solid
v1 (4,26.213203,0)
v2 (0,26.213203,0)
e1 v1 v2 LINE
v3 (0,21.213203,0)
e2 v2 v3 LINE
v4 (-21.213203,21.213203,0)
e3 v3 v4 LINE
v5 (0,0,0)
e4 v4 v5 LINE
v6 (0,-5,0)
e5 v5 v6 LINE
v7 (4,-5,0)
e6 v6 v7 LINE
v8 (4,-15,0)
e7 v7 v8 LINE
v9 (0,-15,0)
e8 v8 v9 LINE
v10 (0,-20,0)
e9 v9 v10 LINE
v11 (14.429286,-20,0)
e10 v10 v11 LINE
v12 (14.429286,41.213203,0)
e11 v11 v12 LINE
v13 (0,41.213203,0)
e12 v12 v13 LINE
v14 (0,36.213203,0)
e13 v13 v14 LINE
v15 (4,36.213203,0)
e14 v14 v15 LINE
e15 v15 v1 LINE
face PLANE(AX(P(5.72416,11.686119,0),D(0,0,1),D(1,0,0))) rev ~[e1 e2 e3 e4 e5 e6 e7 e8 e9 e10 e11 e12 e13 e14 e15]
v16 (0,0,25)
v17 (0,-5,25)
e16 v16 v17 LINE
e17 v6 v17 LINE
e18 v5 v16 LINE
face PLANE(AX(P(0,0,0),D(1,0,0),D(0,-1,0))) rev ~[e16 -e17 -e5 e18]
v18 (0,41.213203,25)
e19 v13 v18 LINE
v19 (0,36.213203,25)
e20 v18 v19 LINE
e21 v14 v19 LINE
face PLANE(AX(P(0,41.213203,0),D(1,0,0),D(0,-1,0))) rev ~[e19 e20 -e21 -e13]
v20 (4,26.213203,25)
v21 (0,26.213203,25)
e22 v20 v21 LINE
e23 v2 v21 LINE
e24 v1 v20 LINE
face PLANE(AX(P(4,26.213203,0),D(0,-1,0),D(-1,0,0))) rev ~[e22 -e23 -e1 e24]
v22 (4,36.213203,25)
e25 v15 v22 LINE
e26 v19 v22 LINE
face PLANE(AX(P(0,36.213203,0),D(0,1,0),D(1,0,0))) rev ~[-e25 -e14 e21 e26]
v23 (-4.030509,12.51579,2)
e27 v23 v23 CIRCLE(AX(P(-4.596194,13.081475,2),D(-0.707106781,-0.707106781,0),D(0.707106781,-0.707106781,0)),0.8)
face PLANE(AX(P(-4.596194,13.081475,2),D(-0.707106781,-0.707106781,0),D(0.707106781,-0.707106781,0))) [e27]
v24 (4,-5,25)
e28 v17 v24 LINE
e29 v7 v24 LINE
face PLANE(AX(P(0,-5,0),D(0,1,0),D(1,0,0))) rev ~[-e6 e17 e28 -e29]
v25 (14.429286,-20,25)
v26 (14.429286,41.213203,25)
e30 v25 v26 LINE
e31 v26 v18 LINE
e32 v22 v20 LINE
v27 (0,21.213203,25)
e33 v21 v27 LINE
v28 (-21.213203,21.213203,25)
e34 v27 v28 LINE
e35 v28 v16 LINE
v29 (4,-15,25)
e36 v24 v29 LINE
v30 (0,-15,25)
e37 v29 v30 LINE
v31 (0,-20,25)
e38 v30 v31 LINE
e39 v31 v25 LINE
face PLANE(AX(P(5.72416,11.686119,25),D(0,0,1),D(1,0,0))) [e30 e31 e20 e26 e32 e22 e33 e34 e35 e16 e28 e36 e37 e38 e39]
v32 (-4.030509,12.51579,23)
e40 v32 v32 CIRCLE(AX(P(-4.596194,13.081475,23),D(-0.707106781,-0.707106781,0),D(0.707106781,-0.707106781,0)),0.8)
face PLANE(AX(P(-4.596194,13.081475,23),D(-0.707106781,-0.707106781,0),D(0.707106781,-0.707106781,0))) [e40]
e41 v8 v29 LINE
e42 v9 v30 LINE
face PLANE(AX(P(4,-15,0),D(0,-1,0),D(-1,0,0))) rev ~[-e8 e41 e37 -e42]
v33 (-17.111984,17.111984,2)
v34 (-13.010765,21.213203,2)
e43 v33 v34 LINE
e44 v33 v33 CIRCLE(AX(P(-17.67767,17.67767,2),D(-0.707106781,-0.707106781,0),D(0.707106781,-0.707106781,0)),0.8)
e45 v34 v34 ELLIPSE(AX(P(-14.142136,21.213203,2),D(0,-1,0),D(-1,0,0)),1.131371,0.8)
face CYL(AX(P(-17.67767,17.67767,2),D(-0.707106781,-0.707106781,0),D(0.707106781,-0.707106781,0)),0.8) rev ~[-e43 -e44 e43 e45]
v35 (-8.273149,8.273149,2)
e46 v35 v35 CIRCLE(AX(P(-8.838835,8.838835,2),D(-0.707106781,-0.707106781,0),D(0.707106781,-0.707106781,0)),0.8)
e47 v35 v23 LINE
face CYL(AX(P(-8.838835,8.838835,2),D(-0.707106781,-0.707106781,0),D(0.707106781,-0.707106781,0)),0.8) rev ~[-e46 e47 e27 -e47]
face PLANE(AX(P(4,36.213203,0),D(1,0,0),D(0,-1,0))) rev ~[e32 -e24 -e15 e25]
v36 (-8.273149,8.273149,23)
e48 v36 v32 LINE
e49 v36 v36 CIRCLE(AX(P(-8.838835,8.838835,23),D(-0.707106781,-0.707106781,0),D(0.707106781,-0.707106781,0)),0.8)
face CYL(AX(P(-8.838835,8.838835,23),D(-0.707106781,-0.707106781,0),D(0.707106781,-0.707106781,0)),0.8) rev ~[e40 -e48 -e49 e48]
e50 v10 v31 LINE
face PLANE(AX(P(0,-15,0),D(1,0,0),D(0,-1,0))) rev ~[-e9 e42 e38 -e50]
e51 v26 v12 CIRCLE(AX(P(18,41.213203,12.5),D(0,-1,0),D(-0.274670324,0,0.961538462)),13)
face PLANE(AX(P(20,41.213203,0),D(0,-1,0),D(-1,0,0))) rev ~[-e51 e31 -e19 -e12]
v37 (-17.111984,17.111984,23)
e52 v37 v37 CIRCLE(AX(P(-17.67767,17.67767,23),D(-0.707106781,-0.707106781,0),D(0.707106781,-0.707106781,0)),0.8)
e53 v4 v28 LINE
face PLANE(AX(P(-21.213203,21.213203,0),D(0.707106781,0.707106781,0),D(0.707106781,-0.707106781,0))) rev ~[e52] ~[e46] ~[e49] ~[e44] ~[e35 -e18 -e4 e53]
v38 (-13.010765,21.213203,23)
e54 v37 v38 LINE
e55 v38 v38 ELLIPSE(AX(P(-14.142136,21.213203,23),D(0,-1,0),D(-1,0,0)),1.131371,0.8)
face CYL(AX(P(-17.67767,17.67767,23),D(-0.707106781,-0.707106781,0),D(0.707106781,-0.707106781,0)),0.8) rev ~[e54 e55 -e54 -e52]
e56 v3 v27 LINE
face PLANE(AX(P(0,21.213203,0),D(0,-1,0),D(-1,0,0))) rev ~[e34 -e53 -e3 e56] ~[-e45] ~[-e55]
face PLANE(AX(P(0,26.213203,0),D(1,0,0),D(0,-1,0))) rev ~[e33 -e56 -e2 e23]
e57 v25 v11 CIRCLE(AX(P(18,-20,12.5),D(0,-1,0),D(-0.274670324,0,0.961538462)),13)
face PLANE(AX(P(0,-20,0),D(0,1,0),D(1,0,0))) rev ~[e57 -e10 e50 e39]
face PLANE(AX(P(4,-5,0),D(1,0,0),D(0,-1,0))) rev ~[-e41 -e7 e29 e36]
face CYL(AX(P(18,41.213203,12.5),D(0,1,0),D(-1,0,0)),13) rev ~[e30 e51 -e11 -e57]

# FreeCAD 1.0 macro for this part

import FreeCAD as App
import Part
import Sketcher

V = App.Vector
Q = App.Units.Quantity

doc = App.newDocument("Part")
params = doc.addObject("Spreadsheet::Sheet", "Params")
for row, (alias, value) in enumerate([
    ("sketch1_width", "4 mm"),
    ("sketch1_width2", "20 mm"),
    ("sketch1_height", "5 mm"),
    ("sketch1_height2", "10 mm"),
    ("sketch1_length", "29.999999 mm"),
    ("pad1_length", "25 mm"),
    ("sketch2_diameter", "26 mm"),
    ("sketch3_diameter", "1.6 mm"),
    ("pocket2_length", "6 mm"),
], start=1):
    params.set(f"A{row}", alias)
    params.set(f"B{row}", "=" + value)
    params.setAlias(f"B{row}", alias)

body = doc.addObject("PartDesign::Body", "Body")

sketch1 = doc.addObject("Sketcher::SketchObject", "Sketch")
body.addObject(sketch1)
sketch1.AttachmentSupport = (doc.XY_Plane, [""])
sketch1.MapMode = "FlatFace"
sketch1.addGeometry(Part.LineSegment(V(0, 21.2, 0), V(-21.2, 21.2, 0)), False)
sketch1.addGeometry(Part.LineSegment(V(-21.2, 21.2, 0), V(0, 0, 0)), False)
sketch1.addGeometry(Part.LineSegment(V(0, 0, 0), V(0, -5, 0)), False)
sketch1.addGeometry(Part.LineSegment(V(0, -5, 0), V(4, -5, 0)), False)
sketch1.addGeometry(Part.LineSegment(V(4, -5, 0), V(4, -15, 0)), False)
sketch1.addGeometry(Part.LineSegment(V(4, -15, 0), V(0, -15, 0)), False)
sketch1.addGeometry(Part.LineSegment(V(0, -15, 0), V(0, -20, 0)), False)
sketch1.addGeometry(Part.LineSegment(V(0, -20, 0), V(20, -20, 0)), False)
sketch1.addGeometry(Part.LineSegment(V(20, -20, 0), V(20, 41.2, 0)), False)
sketch1.addGeometry(Part.LineSegment(V(20, 41.2, 0), V(0, 41.2, 0)), False)
sketch1.addGeometry(Part.LineSegment(V(0, 41.2, 0), V(0, 36.2, 0)), False)
sketch1.addGeometry(Part.LineSegment(V(0, 36.2, 0), V(4, 36.2, 0)), False)
sketch1.addGeometry(Part.LineSegment(V(4, 36.2, 0), V(4, 26.2, 0)), False)
sketch1.addGeometry(Part.LineSegment(V(4, 26.2, 0), V(0, 26.2, 0)), False)
sketch1.addGeometry(Part.LineSegment(V(0, 26.2, 0), V(0, 21.2, 0)), False)
sketch1.addConstraint(Sketcher.Constraint("Coincident", 0, 2, 1, 1))
sketch1.addConstraint(Sketcher.Constraint("Coincident", 1, 2, 2, 1))
sketch1.addConstraint(Sketcher.Constraint("Coincident", 2, 2, 3, 1))
sketch1.addConstraint(Sketcher.Constraint("Coincident", 3, 2, 4, 1))
sketch1.addConstraint(Sketcher.Constraint("Coincident", 4, 2, 5, 1))
sketch1.addConstraint(Sketcher.Constraint("Coincident", 5, 2, 6, 1))
sketch1.addConstraint(Sketcher.Constraint("Coincident", 6, 2, 7, 1))
sketch1.addConstraint(Sketcher.Constraint("Coincident", 7, 2, 8, 1))
sketch1.addConstraint(Sketcher.Constraint("Coincident", 8, 2, 9, 1))
sketch1.addConstraint(Sketcher.Constraint("Coincident", 9, 2, 10, 1))
sketch1.addConstraint(Sketcher.Constraint("Coincident", 10, 2, 11, 1))
sketch1.addConstraint(Sketcher.Constraint("Coincident", 11, 2, 12, 1))
sketch1.addConstraint(Sketcher.Constraint("Coincident", 12, 2, 13, 1))
sketch1.addConstraint(Sketcher.Constraint("Coincident", 13, 2, 14, 1))
sketch1.addConstraint(Sketcher.Constraint("Coincident", 14, 2, 0, 1))
sketch1.addConstraint(Sketcher.Constraint("Horizontal", 0))
sketch1.addConstraint(Sketcher.Constraint("Vertical", 2))
sketch1.addConstraint(Sketcher.Constraint("Horizontal", 3))
sketch1.addConstraint(Sketcher.Constraint("Vertical", 4))
sketch1.addConstraint(Sketcher.Constraint("Horizontal", 5))
sketch1.addConstraint(Sketcher.Constraint("Vertical", 6))
sketch1.addConstraint(Sketcher.Constraint("Horizontal", 7))
sketch1.addConstraint(Sketcher.Constraint("Vertical", 8))
sketch1.addConstraint(Sketcher.Constraint("Horizontal", 9))
sketch1.addConstraint(Sketcher.Constraint("Vertical", 10))
sketch1.addConstraint(Sketcher.Constraint("Horizontal", 11))
sketch1.addConstraint(Sketcher.Constraint("Vertical", 12))
sketch1.addConstraint(Sketcher.Constraint("Horizontal", 13))
sketch1.addConstraint(Sketcher.Constraint("Vertical", 14))
sketch1.addConstraint(Sketcher.Constraint("Coincident", 1, 2, -1, 1))
sketch1.addConstraint(Sketcher.Constraint("PointOnObject", 5, 2, -2))
sketch1.addConstraint(Sketcher.Constraint("PointOnObject", 9, 2, -2))
sketch1.addConstraint(Sketcher.Constraint("PointOnObject", 13, 2, -2))
sketch1.addConstraint(Sketcher.Constraint("Vertical", 4, 2, 11, 2))
sketch1.addConstraint(Sketcher.Constraint("Equal", 2, 6))
sketch1.addConstraint(Sketcher.Constraint("Equal", 6, 10))
sketch1.addConstraint(Sketcher.Constraint("Equal", 4, 12))
sketch1.addConstraint(Sketcher.Constraint("Equal", 10, 14))
sketch1.addConstraint(Sketcher.Constraint("DistanceX", 3, 1, 3, 2, 4.0))
sketch1.addConstraint(Sketcher.Constraint("DistanceX", 7, 1, 7, 2, 20.0))
sketch1.addConstraint(Sketcher.Constraint("DistanceY", 2, 2, 2, 1, 5.0))
sketch1.addConstraint(Sketcher.Constraint("DistanceY", 4, 2, 4, 1, 10.0))
sketch1.addConstraint(Sketcher.Constraint("Angle", 1, Q("-45 deg")))
sketch1.addConstraint(Sketcher.Constraint("Distance", 1, 29.999999))
sketch1.setExpression("Constraints[38]", "Params.sketch1_width")
sketch1.setExpression("Constraints[39]", "Params.sketch1_width2")
sketch1.setExpression("Constraints[40]", "Params.sketch1_height")
sketch1.setExpression("Constraints[41]", "Params.sketch1_height2")
sketch1.setExpression("Constraints[43]", "Params.sketch1_length")
pad1 = doc.addObject("PartDesign::Pad", "Pad")
body.addObject(pad1)
pad1.Profile = sketch1
pad1.setExpression("Length", "Params.pad1_length")

sketch2 = doc.addObject("Sketcher::SketchObject", "Sketch001")
body.addObject(sketch2)
sketch2.AttachmentSupport = (doc.XZ_Plane, [""])
sketch2.MapMode = "FlatFace"
sketch2.AttachmentOffset = App.Placement(V(0, 0, -41.213203), App.Rotation())
sketch2.addGeometry(Part.Circle(V(18, 12, 0), V(0, 0, 1), 13), False)
sketch2.addConstraint(Sketcher.Constraint("Diameter", 0, 26.0))
sketch2.addConstraint(Sketcher.Constraint("DistanceX", -1, 1, 0, 3, 18.0))
sketch2.addConstraint(Sketcher.Constraint("DistanceY", -1, 1, 0, 3, 12.5))
sketch2.setExpression("Constraints[0]", "Params.sketch2_diameter")
pocket1 = doc.addObject("PartDesign::Pocket", "Pocket")
body.addObject(pocket1)
pocket1.Profile = sketch2
pocket1.Type = "ThroughAll"
pocket1.Reversed = True

sketch3 = doc.addObject("Sketcher::SketchObject", "Sketch002")
body.addObject(sketch3)
sketch3.Placement = App.Placement(V(0, 0, 0), App.Rotation(V(0.707106781, -0.707106781, 0), V(0, 0, 0.999999999), V(-0.707106781, -0.707106781, 0), "ZXY"))
sketch3.addGeometry(Part.Circle(V(-25, 23, 0), V(0, 0, 1), 0.8), False)
sketch3.addGeometry(Part.Circle(V(-25, 2, 0), V(0, 0, 1), 0.8), False)
sketch3.addGeometry(Part.Circle(V(-12.5, 23, 0), V(0, 0, 1), 0.8), False)
sketch3.addGeometry(Part.Circle(V(-12.5, 2, 0), V(0, 0, 1), 0.8), False)
sketch3.addConstraint(Sketcher.Constraint("Equal", 0, 1))
sketch3.addConstraint(Sketcher.Constraint("Equal", 1, 2))
sketch3.addConstraint(Sketcher.Constraint("Equal", 2, 3))
sketch3.addConstraint(Sketcher.Constraint("Horizontal", 0, 3, 2, 3))
sketch3.addConstraint(Sketcher.Constraint("Horizontal", 1, 3, 3, 3))
sketch3.addConstraint(Sketcher.Constraint("Vertical", 0, 3, 1, 3))
sketch3.addConstraint(Sketcher.Constraint("Vertical", 2, 3, 3, 3))
sketch3.addConstraint(Sketcher.Constraint("Diameter", 0, 1.6))
sketch3.addConstraint(Sketcher.Constraint("DistanceX", 0, 3, -1, 1, 25.0))
sketch3.addConstraint(Sketcher.Constraint("DistanceY", -1, 1, 0, 3, 23.0))
sketch3.addConstraint(Sketcher.Constraint("DistanceY", -1, 1, 1, 3, 2.0))
sketch3.addConstraint(Sketcher.Constraint("DistanceX", 2, 3, -1, 1, 12.5))
sketch3.setExpression("Constraints[7]", "Params.sketch3_diameter")
pocket2 = doc.addObject("PartDesign::Pocket", "Pocket001")
body.addObject(pocket2)
pocket2.Profile = sketch3
pocket2.setExpression("Length", "Params.pocket2_length")

doc.recompute()
